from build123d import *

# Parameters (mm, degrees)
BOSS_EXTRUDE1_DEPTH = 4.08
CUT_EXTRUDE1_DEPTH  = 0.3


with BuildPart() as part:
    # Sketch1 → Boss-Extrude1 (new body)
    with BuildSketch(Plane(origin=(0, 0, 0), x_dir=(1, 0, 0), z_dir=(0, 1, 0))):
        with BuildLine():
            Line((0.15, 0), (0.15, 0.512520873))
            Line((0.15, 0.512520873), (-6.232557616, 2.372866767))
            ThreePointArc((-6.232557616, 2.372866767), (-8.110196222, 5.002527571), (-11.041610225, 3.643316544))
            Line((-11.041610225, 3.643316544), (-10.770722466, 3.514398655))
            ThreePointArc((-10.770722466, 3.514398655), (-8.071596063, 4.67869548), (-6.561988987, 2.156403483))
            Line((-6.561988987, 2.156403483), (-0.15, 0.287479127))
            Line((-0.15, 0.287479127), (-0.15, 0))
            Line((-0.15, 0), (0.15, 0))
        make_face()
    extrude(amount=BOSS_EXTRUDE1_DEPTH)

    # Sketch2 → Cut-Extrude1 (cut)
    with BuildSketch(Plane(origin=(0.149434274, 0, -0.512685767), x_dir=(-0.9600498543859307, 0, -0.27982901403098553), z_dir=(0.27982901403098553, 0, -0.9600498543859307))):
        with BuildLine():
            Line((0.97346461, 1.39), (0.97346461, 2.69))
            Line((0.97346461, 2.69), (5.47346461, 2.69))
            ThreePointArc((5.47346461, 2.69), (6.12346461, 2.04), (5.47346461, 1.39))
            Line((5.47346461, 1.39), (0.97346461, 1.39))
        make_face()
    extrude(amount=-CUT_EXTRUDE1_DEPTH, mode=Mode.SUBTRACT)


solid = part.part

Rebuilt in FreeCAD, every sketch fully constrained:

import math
import FreeCAD as App
import Part
import Sketcher
Q = App.Units.Quantity

doc = App.newDocument("Part")
params = doc.addObject("Spreadsheet::Sheet", "Params")
for row, (alias, value) in enumerate([
    ("sketch1_width", "0.3 mm"),
    ("sketch1_length", "0.3 mm"),
    ("pad1_length", "4.08 mm"),
    ("sketch2_radius", "0.65 mm"),
    ("sketch2_width", "4.5 mm"),
    ("pocket1_length", "0.3 mm"),
], start=1):
    params.set(f"A{row}", alias)
    params.set(f"B{row}", "=" + value)
    params.setAlias(f"B{row}", alias)

body = doc.addObject("PartDesign::Body", "Body")

# Sketch on XZ plane
sketch1 = body.newObject("Sketcher::SketchObject", "Sketch")
sketch1.AttachmentSupport = (doc.getObject("XZ_Plane"), [""])
sketch1.MapMode = "FlatFace"
sketch1.addGeometry([
    Part.LineSegment(App.Vector(0.15, 0, 0), App.Vector(0.15, -0.512521, 0)),  # 0
    Part.LineSegment(App.Vector(0.15, -0.512521, 0), App.Vector(-6.232558, -2.372867, 0)),  # 1
    Part.ArcOfCircle(Part.Circle(App.Vector(-8.756559, -2.55584, 0), App.Vector(0, 0, 1), 2.530625), math.radians(-154.549809), math.radians(4.146318)),  # 2
    Part.LineSegment(App.Vector(-11.04161, -3.643317, 0), App.Vector(-10.770722, -3.514399, 0)),  # 3
    Part.ArcOfCircle(Part.Circle(App.Vector(-8.756559, -2.55584, 0), App.Vector(0, 0, 1), 2.230625), math.radians(-154.549809), math.radians(10.315567)),  # 4
    Part.LineSegment(App.Vector(-6.561989, -2.156403, 0), App.Vector(-0.15, -0.287479, 0)),  # 5
    Part.LineSegment(App.Vector(-0.15, -0.287479, 0), App.Vector(-0.15, 0, 0)),  # 6
    Part.LineSegment(App.Vector(-0.15, 0, 0), App.Vector(0.15, 0, 0)),  # 7
], False)
sketch1.addConstraint([
    Sketcher.Constraint("Coincident", 0, 2, 1, 1),
    Sketcher.Constraint("Coincident", 1, 2, 2, 2),
    Sketcher.Constraint("Coincident", 2, 1, 3, 1),
    Sketcher.Constraint("Coincident", 3, 2, 4, 1),
    Sketcher.Constraint("Coincident", 4, 2, 5, 1),
    Sketcher.Constraint("Coincident", 5, 2, 6, 1),
    Sketcher.Constraint("Coincident", 6, 2, 7, 1),
    Sketcher.Constraint("Coincident", 7, 2, 0, 1),
    Sketcher.Constraint("Vertical", 0),
    Sketcher.Constraint("Vertical", 6),
    Sketcher.Constraint("Horizontal", 7),
    Sketcher.Constraint("Coincident", 4, 3, 2, 3),
    Sketcher.Constraint("Symmetric", 6, 2, 7, 2, -1, 1),
    Sketcher.Constraint("Parallel", 1, 5),
    Sketcher.Constraint("DistanceX", 7, 1, 7, 2, Q("0.3 mm")),
    Sketcher.Constraint("Distance", 3, Q("0.3 mm")),
    Sketcher.Constraint("Angle", 1, Q("-163.75 deg")),
    Sketcher.Constraint("Radius", 2, Q("2.530625 mm")),
    Sketcher.Constraint("DistanceX", 4, 3, 1, 2, Q("2.524001 mm")),
    Sketcher.Constraint("DistanceY", 0, 2, 0, 1, Q("0.512521 mm")),
    Sketcher.Constraint("DistanceY", 6, 1, 6, 2, Q("0.287479 mm")),
    Sketcher.Constraint("DistanceY", 3, 2, -1, 1, Q("3.514399 mm")),
    Sketcher.Constraint("Distance", 5, Q("6.678808 mm")),
    Sketcher.Constraint("DistanceX", 2, 1, -1, 1, Q("11.04161 mm")),
])
sketch1.setExpression("Constraints[14]", "Params.sketch1_width")
sketch1.setExpression("Constraints[15]", "Params.sketch1_length")
pad1 = body.newObject("PartDesign::Pad", "Pad")
pad1.Profile = sketch1
pad1.setExpression("Length", "Params.pad1_length")
pad1.Reversed = True

# Sketch on an angled plane
sketch2 = body.newObject("Sketcher::SketchObject", "Sketch001")
sketch2.Placement = App.Placement(App.Vector(0.149434, 0, -0.512686), App.Rotation(App.Vector(-0.960049854, 0, -0.279829014), App.Vector(0, 0.999999999, 0), App.Vector(0.279829014, 0, -0.960049854), "ZXY"))
sketch2.addGeometry([
    Part.LineSegment(App.Vector(0.973465, 2.69, 0), App.Vector(0.973465, 1.39, 0)),
    Part.LineSegment(App.Vector(0.973465, 1.39, 0), App.Vector(5.473465, 1.39, 0)),
    Part.ArcOfCircle(Part.Circle(App.Vector(5.473465, 2.04, 0), App.Vector(0, 0, 1), 0.65), math.radians(-90), math.radians(90)),
    Part.LineSegment(App.Vector(5.473465, 2.69, 0), App.Vector(0.973465, 2.69, 0)),
], False)
sketch2.addConstraint([
    Sketcher.Constraint("Coincident", 0, 2, 1, 1),
    Sketcher.Constraint("Tangent", 1, 2, 2, 1),
    Sketcher.Constraint("Tangent", 2, 2, 3, 1),
    Sketcher.Constraint("Coincident", 3, 2, 0, 1),
    Sketcher.Constraint("Vertical", 0),
    Sketcher.Constraint("Horizontal", 1),
    Sketcher.Constraint("Horizontal", 3),
    Sketcher.Constraint("Radius", 2, Q("0.65 mm")),
    Sketcher.Constraint("DistanceX", 1, 1, 1, 2, Q("4.5 mm")),
    Sketcher.Constraint("DistanceY", -1, 1, 2, 3, Q("2.04 mm")),
    Sketcher.Constraint("DistanceX", -1, 1, 2, 3, Q("5.473465 mm")),
])
sketch2.setExpression("Constraints[7]", "Params.sketch2_radius")
sketch2.setExpression("Constraints[8]", "Params.sketch2_width")
pocket1 = body.newObject("PartDesign::Pocket", "Pocket")
pocket1.Profile = sketch2
pocket1.setExpression("Length", "Params.pocket1_length")

doc.recompute()
